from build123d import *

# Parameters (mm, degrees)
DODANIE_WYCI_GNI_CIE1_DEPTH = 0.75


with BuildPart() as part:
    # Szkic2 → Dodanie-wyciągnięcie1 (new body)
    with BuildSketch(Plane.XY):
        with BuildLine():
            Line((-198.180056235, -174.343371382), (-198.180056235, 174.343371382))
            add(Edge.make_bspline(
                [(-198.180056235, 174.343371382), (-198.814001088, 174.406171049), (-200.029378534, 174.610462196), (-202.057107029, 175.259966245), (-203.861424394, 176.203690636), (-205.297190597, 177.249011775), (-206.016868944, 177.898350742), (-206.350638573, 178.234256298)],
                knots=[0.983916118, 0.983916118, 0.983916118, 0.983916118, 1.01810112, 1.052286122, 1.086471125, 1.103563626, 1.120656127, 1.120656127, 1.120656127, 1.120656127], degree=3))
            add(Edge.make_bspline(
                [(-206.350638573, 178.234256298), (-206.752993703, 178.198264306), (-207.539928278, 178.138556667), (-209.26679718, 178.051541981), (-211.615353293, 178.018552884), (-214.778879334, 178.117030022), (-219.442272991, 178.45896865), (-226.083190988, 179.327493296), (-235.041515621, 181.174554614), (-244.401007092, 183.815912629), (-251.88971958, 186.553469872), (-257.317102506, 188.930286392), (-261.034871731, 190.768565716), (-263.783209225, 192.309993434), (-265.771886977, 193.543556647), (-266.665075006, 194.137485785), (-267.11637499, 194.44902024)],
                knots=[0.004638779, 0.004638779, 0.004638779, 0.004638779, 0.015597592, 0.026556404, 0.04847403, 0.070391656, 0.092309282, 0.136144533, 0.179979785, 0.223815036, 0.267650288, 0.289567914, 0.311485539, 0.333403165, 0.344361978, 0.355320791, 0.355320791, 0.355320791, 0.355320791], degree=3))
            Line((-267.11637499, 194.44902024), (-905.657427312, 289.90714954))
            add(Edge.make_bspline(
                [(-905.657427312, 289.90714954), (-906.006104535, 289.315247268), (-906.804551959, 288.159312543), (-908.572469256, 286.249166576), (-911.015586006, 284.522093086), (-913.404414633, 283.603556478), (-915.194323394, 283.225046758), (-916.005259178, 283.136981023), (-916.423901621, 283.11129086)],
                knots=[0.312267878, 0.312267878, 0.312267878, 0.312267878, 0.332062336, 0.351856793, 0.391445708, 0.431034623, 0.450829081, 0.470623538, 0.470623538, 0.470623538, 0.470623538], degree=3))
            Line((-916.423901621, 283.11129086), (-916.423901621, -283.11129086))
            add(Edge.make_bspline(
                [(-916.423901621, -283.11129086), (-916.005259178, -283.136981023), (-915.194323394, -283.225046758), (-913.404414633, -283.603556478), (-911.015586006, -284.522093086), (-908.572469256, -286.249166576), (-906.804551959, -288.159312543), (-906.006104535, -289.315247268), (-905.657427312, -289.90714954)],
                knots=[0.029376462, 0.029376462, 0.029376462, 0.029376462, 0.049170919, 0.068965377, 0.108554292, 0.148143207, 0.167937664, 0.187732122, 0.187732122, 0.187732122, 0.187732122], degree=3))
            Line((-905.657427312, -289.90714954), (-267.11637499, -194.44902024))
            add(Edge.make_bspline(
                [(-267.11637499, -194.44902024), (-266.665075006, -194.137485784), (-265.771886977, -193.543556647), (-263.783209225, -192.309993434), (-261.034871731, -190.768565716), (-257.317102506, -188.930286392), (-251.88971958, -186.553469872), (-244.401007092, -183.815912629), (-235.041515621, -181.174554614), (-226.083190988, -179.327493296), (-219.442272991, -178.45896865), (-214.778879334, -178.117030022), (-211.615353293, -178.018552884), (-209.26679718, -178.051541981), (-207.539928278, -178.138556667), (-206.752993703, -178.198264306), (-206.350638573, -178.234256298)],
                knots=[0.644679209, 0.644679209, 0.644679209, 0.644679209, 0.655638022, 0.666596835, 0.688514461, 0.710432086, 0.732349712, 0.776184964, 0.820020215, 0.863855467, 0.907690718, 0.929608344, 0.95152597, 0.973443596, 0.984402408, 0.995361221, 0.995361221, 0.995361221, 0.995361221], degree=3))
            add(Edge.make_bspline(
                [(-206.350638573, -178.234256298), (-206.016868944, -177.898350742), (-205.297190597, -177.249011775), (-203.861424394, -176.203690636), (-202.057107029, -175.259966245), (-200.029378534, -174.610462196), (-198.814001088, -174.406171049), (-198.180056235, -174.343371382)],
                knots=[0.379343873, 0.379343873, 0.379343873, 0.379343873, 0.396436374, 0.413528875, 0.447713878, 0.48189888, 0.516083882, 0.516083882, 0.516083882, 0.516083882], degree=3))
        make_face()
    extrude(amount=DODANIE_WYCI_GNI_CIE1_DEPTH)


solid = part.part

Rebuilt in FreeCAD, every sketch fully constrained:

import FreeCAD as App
import Part
import Sketcher
from FreeCAD import Vector

doc = App.newDocument("Part")
params = doc.addObject("Spreadsheet::Sheet", "Params")
for row, (alias, value) in enumerate([
    ("pad1_length", "0.75 mm"),
], start=1):
    params.set(f"A{row}", alias)
    params.set(f"B{row}", "=" + value)
    params.setAlias(f"B{row}", alias)

body = doc.addObject("PartDesign::Body", "Body")

sketch1 = body.newObject("Sketcher::SketchObject", "Sketch")
sketch1.AttachmentSupport = (doc.getObject("XY_Plane"), [""])
sketch1.MapMode = "FlatFace"
sketch1.addGeometry([
    Part.LineSegment(Vector(-198.180056, -174.343371, 0), Vector(-198.180056, 174.343371, 0)),
    Part.BSplineCurve([Vector(-198.180056, 174.343371, 0), Vector(-198.814001, 174.406171, 0), Vector(-200.029379, 174.610462, 0), Vector(-202.057107, 175.259966, 0), Vector(-203.861424, 176.203691, 0), Vector(-205.297191, 177.249012, 0), Vector(-206.016869, 177.898351, 0), Vector(-206.350639, 178.234256, 0)], [4, 1, 1, 1, 1, 4], [0.983916118, 1.01810112, 1.052286122, 1.086471125, 1.103563626, 1.120656127], False, 3, [1, 1, 1, 1, 1, 1, 1, 1], False),
    Part.BSplineCurve([Vector(-206.350639, 178.234256, 0), Vector(-206.752994, 178.198264, 0), Vector(-207.539928, 178.138557, 0), Vector(-209.266797, 178.051542, 0), Vector(-211.615353, 178.018553, 0), Vector(-214.778879, 178.11703, 0), Vector(-219.442273, 178.458969, 0), Vector(-226.083191, 179.327493, 0), Vector(-235.041516, 181.174555, 0), Vector(-244.401007, 183.815913, 0), Vector(-251.88972, 186.55347, 0), Vector(-257.317103, 188.930286, 0), Vector(-261.034872, 190.768566, 0), Vector(-263.783209, 192.309993, 0), Vector(-265.771887, 193.543557, 0), Vector(-266.665075, 194.137486, 0), Vector(-267.116375, 194.44902, 0)], [4, 1, 1, 1, 1, 1, 1, 1, 1, 1, 1, 1, 1, 1, 4], [0.004638779, 0.015597592, 0.026556404, 0.04847403, 0.070391656, 0.092309282, 0.136144533, 0.179979785, 0.223815036, 0.267650288, 0.289567914, 0.311485539, 0.333403165, 0.344361978, 0.355320791], False, 3, [1, 1, 1, 1, 1, 1, 1, 1, 1, 1, 1, 1, 1, 1, 1, 1, 1], False),
    Part.LineSegment(Vector(-267.116375, 194.44902, 0), Vector(-905.657427, 289.90715, 0)),
    Part.BSplineCurve([Vector(-905.657427, 289.90715, 0), Vector(-906.006105, 289.315247, 0), Vector(-906.804552, 288.159313, 0), Vector(-908.572469, 286.249167, 0), Vector(-911.015586, 284.522093, 0), Vector(-913.404415, 283.603556, 0), Vector(-915.194323, 283.225047, 0), Vector(-916.005259, 283.136981, 0), Vector(-916.423902, 283.111291, 0)], [4, 1, 1, 1, 1, 1, 4], [0.312267878, 0.332062336, 0.351856793, 0.391445708, 0.431034623, 0.450829081, 0.470623538], False, 3, [1, 1, 1, 1, 1, 1, 1, 1, 1], False),
    Part.LineSegment(Vector(-916.423902, 283.111291, 0), Vector(-916.423902, -283.111291, 0)),
    Part.BSplineCurve([Vector(-916.423902, -283.111291, 0), Vector(-916.005259, -283.136981, 0), Vector(-915.194323, -283.225047, 0), Vector(-913.404415, -283.603556, 0), Vector(-911.015586, -284.522093, 0), Vector(-908.572469, -286.249167, 0), Vector(-906.804552, -288.159313, 0), Vector(-906.006105, -289.315247, 0), Vector(-905.657427, -289.90715, 0)], [4, 1, 1, 1, 1, 1, 4], [0.029376462, 0.049170919, 0.068965377, 0.108554292, 0.148143207, 0.167937664, 0.187732122], False, 3, [1, 1, 1, 1, 1, 1, 1, 1, 1], False),
    Part.LineSegment(Vector(-905.657427, -289.90715, 0), Vector(-267.116375, -194.44902, 0)),
    Part.BSplineCurve([Vector(-267.116375, -194.44902, 0), Vector(-266.665075, -194.137486, 0), Vector(-265.771887, -193.543557, 0), Vector(-263.783209, -192.309993, 0), Vector(-261.034872, -190.768566, 0), Vector(-257.317103, -188.930286, 0), Vector(-251.88972, -186.55347, 0), Vector(-244.401007, -183.815913, 0), Vector(-235.041516, -181.174555, 0), Vector(-226.083191, -179.327493, 0), Vector(-219.442273, -178.458969, 0), Vector(-214.778879, -178.11703, 0), Vector(-211.615353, -178.018553, 0), Vector(-209.266797, -178.051542, 0), Vector(-207.539928, -178.138557, 0), Vector(-206.752994, -178.198264, 0), Vector(-206.350639, -178.234256, 0)], [4, 1, 1, 1, 1, 1, 1, 1, 1, 1, 1, 1, 1, 1, 4], [0.644679209, 0.655638022, 0.666596835, 0.688514461, 0.710432086, 0.732349712, 0.776184964, 0.820020215, 0.863855467, 0.907690718, 0.929608344, 0.95152597, 0.973443596, 0.984402408, 0.995361221], False, 3, [1, 1, 1, 1, 1, 1, 1, 1, 1, 1, 1, 1, 1, 1, 1, 1, 1], False),
    Part.BSplineCurve([Vector(-206.350639, -178.234256, 0), Vector(-206.016869, -177.898351, 0), Vector(-205.297191, -177.249012, 0), Vector(-203.861424, -176.203691, 0), Vector(-202.057107, -175.259966, 0), Vector(-200.029379, -174.610462, 0), Vector(-198.814001, -174.406171, 0), Vector(-198.180056, -174.343371, 0)], [4, 1, 1, 1, 1, 4], [0.379343873, 0.396436374, 0.413528875, 0.447713878, 0.48189888, 0.516083882], False, 3, [1, 1, 1, 1, 1, 1, 1, 1], False),
], False)
sketch1.addConstraint([
    Sketcher.Constraint("Block", 1),
    Sketcher.Constraint("Block", 2),
    Sketcher.Constraint("Block", 4),
    Sketcher.Constraint("Block", 6),
    Sketcher.Constraint("Block", 8),
    Sketcher.Constraint("Block", 9),
    Sketcher.Constraint("Coincident", 0, 2, 1, 1),
    Sketcher.Constraint("Coincident", 2, 2, 3, 1),
    Sketcher.Constraint("Coincident", 3, 2, 4, 1),
    Sketcher.Constraint("Coincident", 4, 2, 5, 1),
    Sketcher.Constraint("Coincident", 5, 2, 6, 1),
    Sketcher.Constraint("Coincident", 6, 2, 7, 1),
    Sketcher.Constraint("Coincident", 7, 2, 8, 1),
    Sketcher.Constraint("Coincident", 9, 2, 0, 1),
])
pad1 = body.newObject("PartDesign::Pad", "Pad")
pad1.Profile = sketch1
pad1.setExpression("Length", "Params.pad1_length")

doc.recompute()
